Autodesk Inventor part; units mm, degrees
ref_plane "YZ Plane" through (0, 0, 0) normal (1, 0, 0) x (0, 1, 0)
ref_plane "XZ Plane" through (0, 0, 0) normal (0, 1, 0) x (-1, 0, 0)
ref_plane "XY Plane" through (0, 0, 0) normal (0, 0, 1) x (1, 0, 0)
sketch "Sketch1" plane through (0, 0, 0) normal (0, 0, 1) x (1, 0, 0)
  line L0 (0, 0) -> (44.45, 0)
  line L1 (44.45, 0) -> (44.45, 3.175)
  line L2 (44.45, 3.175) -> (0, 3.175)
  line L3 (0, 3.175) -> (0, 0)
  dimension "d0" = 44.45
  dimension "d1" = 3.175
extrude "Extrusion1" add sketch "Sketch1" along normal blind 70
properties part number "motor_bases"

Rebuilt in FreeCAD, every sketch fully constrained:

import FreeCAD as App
import Part
import Sketcher
Q = App.Units.Quantity


def add_polygon(sketch, points):
    """Adds a closed chain of lines whose ends are joined by coincident constraints."""
    first, n = sketch.GeometryCount, len(points)
    for a, b in zip(points, points[1:] + points[:1]):
        sketch.addGeometry(Part.LineSegment(App.Vector(*a, 0), App.Vector(*b, 0)), False)
    for i in range(n):
        sketch.addConstraint(Sketcher.Constraint("Coincident", first + i, 2, first + (i + 1) % n, 1))

doc = App.newDocument("Part")
params = doc.addObject("Spreadsheet::Sheet", "Params")
for row, (alias, value) in enumerate([
    ("sketch1_width", "1.75 in"),
    ("sketch1_height", "0.125 in"),
    ("pad1_length", "2.7559055 in"),
], start=1):
    params.set(f"A{row}", alias)
    params.set(f"B{row}", "=" + value)
    params.setAlias(f"B{row}", alias)

body = doc.addObject("PartDesign::Body", "Body")

sketch1 = doc.addObject("Sketcher::SketchObject", "Sketch")
body.addObject(sketch1)
sketch1.AttachmentSupport = (doc.XY_Plane, [""])
sketch1.MapMode = "FlatFace"
add_polygon(sketch1, [(0, 3.2), (0, 0), (44.5, 0), (44.5, 3.2)])
sketch1.addConstraint(Sketcher.Constraint("Vertical", 0))
sketch1.addConstraint(Sketcher.Constraint("Horizontal", 1))
sketch1.addConstraint(Sketcher.Constraint("Vertical", 2))
sketch1.addConstraint(Sketcher.Constraint("Horizontal", 3))
sketch1.addConstraint(Sketcher.Constraint("Coincident", 0, 2, -1, 1))
sketch1.addConstraint(Sketcher.Constraint("DistanceX", 1, 1, 1, 2, Q("1.75 in")))
sketch1.addConstraint(Sketcher.Constraint("DistanceY", 0, 2, 0, 1, Q("0.125 in")))
sketch1.setExpression("Constraints[9]", "Params.sketch1_width")
sketch1.setExpression("Constraints[10]", "Params.sketch1_height")
pad1 = doc.addObject("PartDesign::Pad", "Pad")
body.addObject(pad1)
pad1.Profile = sketch1
pad1.setExpression("Length", "Params.pad1_length")

doc.recompute()
